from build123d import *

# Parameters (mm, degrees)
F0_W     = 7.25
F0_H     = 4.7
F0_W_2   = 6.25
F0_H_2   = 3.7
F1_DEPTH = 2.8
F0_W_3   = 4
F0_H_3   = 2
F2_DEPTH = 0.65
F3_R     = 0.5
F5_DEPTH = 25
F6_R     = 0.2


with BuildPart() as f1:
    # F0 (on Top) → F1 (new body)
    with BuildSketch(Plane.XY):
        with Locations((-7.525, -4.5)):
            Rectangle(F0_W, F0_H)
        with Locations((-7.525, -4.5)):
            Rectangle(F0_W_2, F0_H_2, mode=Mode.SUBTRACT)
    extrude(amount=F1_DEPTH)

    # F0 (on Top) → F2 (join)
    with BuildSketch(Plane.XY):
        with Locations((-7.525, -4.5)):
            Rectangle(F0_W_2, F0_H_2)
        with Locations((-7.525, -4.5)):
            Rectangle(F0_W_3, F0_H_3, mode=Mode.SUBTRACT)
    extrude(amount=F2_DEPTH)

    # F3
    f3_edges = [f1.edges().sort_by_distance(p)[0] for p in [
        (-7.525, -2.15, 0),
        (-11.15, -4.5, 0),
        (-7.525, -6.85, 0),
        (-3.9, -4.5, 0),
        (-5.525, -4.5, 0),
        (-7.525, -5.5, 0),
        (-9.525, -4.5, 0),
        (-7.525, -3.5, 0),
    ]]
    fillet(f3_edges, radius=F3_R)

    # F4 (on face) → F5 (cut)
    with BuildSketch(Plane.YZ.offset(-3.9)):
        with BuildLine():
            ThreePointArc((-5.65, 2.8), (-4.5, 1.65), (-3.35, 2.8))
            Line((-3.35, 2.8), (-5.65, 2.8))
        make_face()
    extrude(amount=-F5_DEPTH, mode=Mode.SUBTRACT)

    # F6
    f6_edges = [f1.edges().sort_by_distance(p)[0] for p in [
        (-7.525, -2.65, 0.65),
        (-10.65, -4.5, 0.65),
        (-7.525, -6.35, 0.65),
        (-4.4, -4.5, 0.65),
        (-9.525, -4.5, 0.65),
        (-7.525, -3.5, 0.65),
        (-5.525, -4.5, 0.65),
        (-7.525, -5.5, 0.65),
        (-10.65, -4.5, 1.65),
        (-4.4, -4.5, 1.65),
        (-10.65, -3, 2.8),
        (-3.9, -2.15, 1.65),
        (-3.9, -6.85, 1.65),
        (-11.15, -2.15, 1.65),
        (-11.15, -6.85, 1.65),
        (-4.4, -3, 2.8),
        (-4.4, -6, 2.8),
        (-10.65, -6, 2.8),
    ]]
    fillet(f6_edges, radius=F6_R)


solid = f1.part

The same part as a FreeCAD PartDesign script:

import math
import FreeCAD as App
import Part
import Sketcher

V = App.Vector
Q = App.Units.Quantity


def edges_at(feature, points):
    """Names of the edges that pass closest to the given points."""
    edges = feature.Shape.Edges
    near = lambda p: min(range(len(edges)), key=lambda i: edges[i].distToShape(Part.Vertex(*p))[0])
    return sorted({f"Edge{near(p) + 1}" for p in points})


def add_polygon(sketch, points):
    """Adds a closed chain of lines whose ends are joined by coincident constraints."""
    first, n = sketch.GeometryCount, len(points)
    for a, b in zip(points, points[1:] + points[:1]):
        sketch.addGeometry(Part.LineSegment(App.Vector(*a, 0), App.Vector(*b, 0)), False)
    for i in range(n):
        sketch.addConstraint(Sketcher.Constraint("Coincident", first + i, 2, first + (i + 1) % n, 1))

doc = App.newDocument("Part")
params = doc.addObject("Spreadsheet::Sheet", "Params")
for row, (alias, value) in enumerate([
    ("sketch1_height", "4.7 mm"),
    ("sketch1_height2", "3.7 mm"),
    ("sketch1_width", "7.25 mm"),
    ("sketch1_width2", "6.25 mm"),
    ("pad1_length", "2.8 mm"),
    ("sketch2_width", "4 mm"),
    ("sketch2_height", "2 mm"),
    ("sketch2_height2", "3.7 mm"),
    ("sketch2_width2", "6.25 mm"),
    ("pad2_length", "0.65 mm"),
    ("fillet_radius", "0.5 mm"),
    ("sketch3_radius", "1.15 mm"),
    ("pocket1_length", "25 mm"),
    ("fillet2_radius", "0.2 mm"),
], start=1):
    params.set(f"A{row}", alias)
    params.set(f"B{row}", "=" + value)
    params.setAlias(f"B{row}", alias)

body = doc.addObject("PartDesign::Body", "Body")

sketch1 = doc.addObject("Sketcher::SketchObject", "Sketch")
body.addObject(sketch1)
sketch1.AttachmentSupport = (doc.XY_Plane, [""])
sketch1.MapMode = "FlatFace"
add_polygon(sketch1, [(-11.2, -2.1), (-11.2, -6.8), (-3.9, -6.8), (-3.9, -2.1)])
add_polygon(sketch1, [(-4.4, -6.3), (-10.7, -6.3), (-10.7, -2.6), (-4.4, -2.6)])
sketch1.addConstraint(Sketcher.Constraint("Vertical", 0))
sketch1.addConstraint(Sketcher.Constraint("Horizontal", 1))
sketch1.addConstraint(Sketcher.Constraint("Vertical", 2))
sketch1.addConstraint(Sketcher.Constraint("Horizontal", 3))
sketch1.addConstraint(Sketcher.Constraint("Horizontal", 4))
sketch1.addConstraint(Sketcher.Constraint("Vertical", 5))
sketch1.addConstraint(Sketcher.Constraint("Horizontal", 6))
sketch1.addConstraint(Sketcher.Constraint("Vertical", 7))
sketch1.addConstraint(Sketcher.Constraint("DistanceY", 0, 2, 0, 1, Q("4.7 mm")))
sketch1.addConstraint(Sketcher.Constraint("DistanceY", 5, 1, 5, 2, Q("3.7 mm")))
sketch1.addConstraint(Sketcher.Constraint("DistanceX", 1, 1, 1, 2, Q("7.25 mm")))
sketch1.addConstraint(Sketcher.Constraint("DistanceX", 4, 2, 4, 1, Q("6.25 mm")))
sketch1.addConstraint(Sketcher.Constraint("DistanceX", 1, 2, -1, 1, Q("3.9 mm")))
sketch1.addConstraint(Sketcher.Constraint("DistanceX", 6, 2, -1, 1, Q("4.4 mm")))
sketch1.addConstraint(Sketcher.Constraint("DistanceY", 0, 2, 4, 2, Q("0.5 mm")))
sketch1.addConstraint(Sketcher.Constraint("DistanceY", 0, 2, -1, 1, Q("6.85 mm")))
sketch1.setExpression("Constraints[16]", "Params.sketch1_height")
sketch1.setExpression("Constraints[17]", "Params.sketch1_height2")
sketch1.setExpression("Constraints[18]", "Params.sketch1_width")
sketch1.setExpression("Constraints[19]", "Params.sketch1_width2")
pad1 = doc.addObject("PartDesign::Pad", "Pad")
body.addObject(pad1)
pad1.Profile = sketch1
pad1.setExpression("Length", "Params.pad1_length")

sketch2 = doc.addObject("Sketcher::SketchObject", "Sketch001")
body.addObject(sketch2)
sketch2.AttachmentSupport = (doc.XY_Plane, [""])
sketch2.MapMode = "FlatFace"
add_polygon(sketch2, [(-10.7, -2.6), (-10.7, -6.3), (-4.4, -6.3), (-4.4, -2.6)])
add_polygon(sketch2, [(-5.5, -5.5), (-9.5, -5.5), (-9.5, -3.5), (-5.5, -3.5)])
sketch2.addConstraint(Sketcher.Constraint("Vertical", 0))
sketch2.addConstraint(Sketcher.Constraint("Horizontal", 1))
sketch2.addConstraint(Sketcher.Constraint("Vertical", 2))
sketch2.addConstraint(Sketcher.Constraint("Horizontal", 3))
sketch2.addConstraint(Sketcher.Constraint("Horizontal", 4))
sketch2.addConstraint(Sketcher.Constraint("Vertical", 5))
sketch2.addConstraint(Sketcher.Constraint("Horizontal", 6))
sketch2.addConstraint(Sketcher.Constraint("Vertical", 7))
sketch2.addConstraint(Sketcher.Constraint("DistanceX", 4, 2, 4, 1, Q("4 mm")))
sketch2.addConstraint(Sketcher.Constraint("DistanceY", 5, 1, 5, 2, Q("2 mm")))
sketch2.addConstraint(Sketcher.Constraint("DistanceY", 0, 2, 0, 1, Q("3.7 mm")))
sketch2.addConstraint(Sketcher.Constraint("DistanceX", 1, 1, 1, 2, Q("6.25 mm")))
sketch2.addConstraint(Sketcher.Constraint("DistanceX", 1, 2, -1, 1, Q("4.4 mm")))
sketch2.addConstraint(Sketcher.Constraint("DistanceY", 4, 2, -1, 1, Q("5.5 mm")))
sketch2.addConstraint(Sketcher.Constraint("DistanceY", 0, 2, -1, 1, Q("6.35 mm")))
sketch2.addConstraint(Sketcher.Constraint("DistanceX", 4, 2, -1, 1, Q("9.525 mm")))
sketch2.setExpression("Constraints[16]", "Params.sketch2_width")
sketch2.setExpression("Constraints[17]", "Params.sketch2_height")
sketch2.setExpression("Constraints[18]", "Params.sketch2_height2")
sketch2.setExpression("Constraints[19]", "Params.sketch2_width2")
pad2 = doc.addObject("PartDesign::Pad", "Pad001")
body.addObject(pad2)
pad2.Profile = sketch2
pad2.setExpression("Length", "Params.pad2_length")
doc.recompute()

fillet = doc.addObject("PartDesign::Fillet", "Fillet")
body.addObject(fillet)
fillet.Base = (pad2, edges_at(pad2, [
    (-7.525, -2.15, 0),
    (-11.15, -4.5, 0),
    (-7.525, -6.85, 0),
    (-3.9, -4.5, 0),
    (-5.525, -4.5, 0),
    (-7.525, -5.5, 0),
    (-9.525, -4.5, 0),
    (-7.525, -3.5, 0),
]))
fillet.setExpression("Radius", "Params.fillet_radius")

sketch3 = doc.addObject("Sketcher::SketchObject", "Sketch002")
body.addObject(sketch3)
sketch3.AttachmentSupport = (doc.YZ_Plane, [""])
sketch3.MapMode = "FlatFace"
sketch3.AttachmentOffset = App.Placement(V(0, 0, -3.9), App.Rotation())
sketch3.addGeometry(Part.ArcOfCircle(Part.Circle(V(-4.5, 2.8, 0), V(0, 0, 1), 1.1), math.radians(180), math.radians(360)), False)
sketch3.addGeometry(Part.LineSegment(V(-3.4, 2.8, 0), V(-5.7, 2.8, 0)), False)
sketch3.addConstraint(Sketcher.Constraint("Coincident", 0, 1, 1, 2))
sketch3.addConstraint(Sketcher.Constraint("Coincident", 1, 1, 0, 2))
sketch3.addConstraint(Sketcher.Constraint("Horizontal", 1))
sketch3.addConstraint(Sketcher.Constraint("Radius", 0, Q("1.15 mm")))
sketch3.addConstraint(Sketcher.Constraint("DistanceX", 0, 3, -1, 1, Q("4.5 mm")))
sketch3.addConstraint(Sketcher.Constraint("DistanceY", -1, 1, 0, 3, Q("2.8 mm")))
sketch3.addConstraint(Sketcher.Constraint("DistanceY", -1, 1, 0, 1, Q("2.8 mm")))
sketch3.setExpression("Constraints[3]", "Params.sketch3_radius")
pocket1 = doc.addObject("PartDesign::Pocket", "Pocket")
body.addObject(pocket1)
pocket1.Profile = sketch3
pocket1.setExpression("Length", "Params.pocket1_length")
doc.recompute()

fillet2 = doc.addObject("PartDesign::Fillet", "Fillet001")
body.addObject(fillet2)
fillet2.Base = (pocket1, edges_at(pocket1, [
    (-7.525, -2.65, 0.65),
    (-10.65, -4.5, 0.65),
    (-7.525, -6.35, 0.65),
    (-4.4, -4.5, 0.65),
    (-9.525, -4.5, 0.65),
    (-7.525, -3.5, 0.65),
    (-5.525, -4.5, 0.65),
    (-7.525, -5.5, 0.65),
    (-10.65, -4.5, 1.65),
    (-4.4, -4.5, 1.65),
    (-10.65, -3, 2.8),
    (-3.9, -2.15, 1.65),
    (-3.9, -6.85, 1.65),
    (-11.15, -2.15, 1.65),
    (-11.15, -6.85, 1.65),
    (-4.4, -3, 2.8),
    (-4.4, -6, 2.8),
    (-10.65, -6, 2.8),
]))
fillet2.setExpression("Radius", "Params.fillet2_radius")

doc.recompute()
